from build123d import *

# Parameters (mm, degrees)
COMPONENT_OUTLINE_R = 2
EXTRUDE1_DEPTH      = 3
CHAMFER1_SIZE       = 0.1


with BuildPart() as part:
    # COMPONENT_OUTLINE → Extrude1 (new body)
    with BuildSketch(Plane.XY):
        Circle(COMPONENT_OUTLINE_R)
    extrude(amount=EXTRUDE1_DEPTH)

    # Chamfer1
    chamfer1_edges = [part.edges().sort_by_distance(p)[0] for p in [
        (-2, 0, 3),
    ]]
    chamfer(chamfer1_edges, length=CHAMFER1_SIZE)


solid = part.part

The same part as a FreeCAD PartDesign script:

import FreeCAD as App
import Part
import Sketcher


def edges_at(feature, points):
    """Names of the edges that pass closest to the given points."""
    edges = feature.Shape.Edges
    near = lambda p: min(range(len(edges)), key=lambda i: edges[i].distToShape(Part.Vertex(*p))[0])
    return sorted({f"Edge{near(p) + 1}" for p in points})

doc = App.newDocument("Part")
params = doc.addObject("Spreadsheet::Sheet", "Params")
for row, (alias, value) in enumerate([
    ("sketch1_diameter", "4 mm"),
    ("pad1_length", "3 mm"),
    ("chamfer_size", "0.1 mm"),
], start=1):
    params.set(f"A{row}", alias)
    params.set(f"B{row}", "=" + value)
    params.setAlias(f"B{row}", alias)

body = doc.addObject("PartDesign::Body", "Body")

# Sketch on XY plane
sketch1 = body.newObject("Sketcher::SketchObject", "Sketch")
sketch1.AttachmentSupport = (doc.getObject("XY_Plane"), [""])
sketch1.MapMode = "FlatFace"
sketch1.addGeometry(Part.Circle(App.Vector(0, 0, 0), App.Vector(0, 0, 1), 2), False)
sketch1.addConstraint([
    Sketcher.Constraint("Coincident", 0, 3, -1, 1),
    Sketcher.Constraint("Diameter", 0, 4.0),
])
sketch1.setExpression("Constraints[1]", "Params.sketch1_diameter")
pad1 = body.newObject("PartDesign::Pad", "Pad")
pad1.Profile = sketch1
pad1.setExpression("Length", "Params.pad1_length")
doc.recompute()

chamfer = body.newObject("PartDesign::Chamfer", "Chamfer")
chamfer.Base = (pad1, edges_at(pad1, [(-2, 0, 3)]))
chamfer.setExpression("Size", "Params.chamfer_size")

doc.recompute()
